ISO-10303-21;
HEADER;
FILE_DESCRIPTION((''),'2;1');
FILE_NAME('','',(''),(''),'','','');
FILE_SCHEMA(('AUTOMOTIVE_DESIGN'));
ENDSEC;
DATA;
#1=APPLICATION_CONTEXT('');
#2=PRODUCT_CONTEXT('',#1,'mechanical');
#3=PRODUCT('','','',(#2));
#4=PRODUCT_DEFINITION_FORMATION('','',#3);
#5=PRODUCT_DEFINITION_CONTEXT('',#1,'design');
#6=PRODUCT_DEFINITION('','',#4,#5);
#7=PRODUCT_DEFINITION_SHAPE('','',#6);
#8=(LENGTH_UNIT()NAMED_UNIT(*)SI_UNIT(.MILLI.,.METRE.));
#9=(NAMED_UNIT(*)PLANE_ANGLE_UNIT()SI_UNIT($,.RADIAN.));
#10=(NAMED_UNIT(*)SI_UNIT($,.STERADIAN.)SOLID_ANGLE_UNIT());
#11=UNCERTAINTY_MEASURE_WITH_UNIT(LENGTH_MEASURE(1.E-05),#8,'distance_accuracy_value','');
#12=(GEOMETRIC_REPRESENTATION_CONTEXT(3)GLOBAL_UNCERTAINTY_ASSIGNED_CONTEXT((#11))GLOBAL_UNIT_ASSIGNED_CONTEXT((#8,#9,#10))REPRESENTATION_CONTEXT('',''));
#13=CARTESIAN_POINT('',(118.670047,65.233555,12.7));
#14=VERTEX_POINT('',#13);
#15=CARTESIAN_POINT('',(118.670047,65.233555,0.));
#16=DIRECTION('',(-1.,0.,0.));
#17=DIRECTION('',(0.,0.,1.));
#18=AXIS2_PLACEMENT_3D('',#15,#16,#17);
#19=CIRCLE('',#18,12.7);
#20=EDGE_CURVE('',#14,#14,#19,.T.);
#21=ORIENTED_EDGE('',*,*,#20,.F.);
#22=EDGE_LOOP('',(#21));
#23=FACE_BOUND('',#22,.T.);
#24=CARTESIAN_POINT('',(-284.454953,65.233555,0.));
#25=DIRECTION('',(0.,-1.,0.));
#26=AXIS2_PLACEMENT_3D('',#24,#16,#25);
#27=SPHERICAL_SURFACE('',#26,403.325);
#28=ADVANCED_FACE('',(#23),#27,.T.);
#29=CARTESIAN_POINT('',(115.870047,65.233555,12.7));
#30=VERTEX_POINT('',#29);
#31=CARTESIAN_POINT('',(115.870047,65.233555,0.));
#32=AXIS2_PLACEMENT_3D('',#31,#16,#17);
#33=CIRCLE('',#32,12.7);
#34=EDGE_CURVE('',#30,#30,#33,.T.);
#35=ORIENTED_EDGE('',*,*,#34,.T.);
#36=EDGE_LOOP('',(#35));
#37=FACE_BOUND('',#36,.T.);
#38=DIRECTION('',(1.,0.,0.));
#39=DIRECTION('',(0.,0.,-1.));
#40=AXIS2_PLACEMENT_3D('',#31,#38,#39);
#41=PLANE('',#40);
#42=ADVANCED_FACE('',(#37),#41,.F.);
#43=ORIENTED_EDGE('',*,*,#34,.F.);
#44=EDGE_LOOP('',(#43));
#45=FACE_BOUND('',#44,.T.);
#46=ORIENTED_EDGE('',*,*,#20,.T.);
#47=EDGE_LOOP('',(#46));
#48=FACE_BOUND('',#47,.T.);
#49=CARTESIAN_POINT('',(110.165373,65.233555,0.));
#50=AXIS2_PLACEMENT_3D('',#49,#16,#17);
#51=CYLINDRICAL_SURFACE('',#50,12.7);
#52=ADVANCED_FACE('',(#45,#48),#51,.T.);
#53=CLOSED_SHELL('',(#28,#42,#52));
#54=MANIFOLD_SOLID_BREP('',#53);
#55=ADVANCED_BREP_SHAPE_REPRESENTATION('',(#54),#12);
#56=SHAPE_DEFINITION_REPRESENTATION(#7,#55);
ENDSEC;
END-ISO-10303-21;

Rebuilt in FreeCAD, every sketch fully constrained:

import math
import FreeCAD as App
import Part
import Sketcher
from FreeCAD import Vector
Q = App.Units.Quantity

doc = App.newDocument("Part")
body = doc.addObject("PartDesign::Body", "Body")

sketch1 = body.newObject("Sketcher::SketchObject", "Sketch")
sketch1.AttachmentSupport = (doc.getObject("XY_Plane"), [""])
sketch1.MapMode = "FlatFace"
sketch1.addGeometry(Part.LineSegment(Vector(115.870047, 77.933555, 0), Vector(115.870047, 65.233555, 0)), False)
sketch1.addGeometry(Part.LineSegment(Vector(115.870047, 65.233555, 0), Vector(118.870047, 65.233555, 0)), False)
sketch1.addGeometry(Part.ArcOfCircle(Part.Circle(Vector(-284.454956, 65.233555, 0), Vector(0, 0, 1), 403.325003), math.radians(0), math.radians(1.804442)), False)
sketch1.addGeometry(Part.LineSegment(Vector(118.670047, 77.933555, 0), Vector(115.870047, 77.933555, 0)), False)
sketch1.addGeometry(Part.LineSegment(Vector(-284.454956, 65.233555, 0), Vector(118.870047, 65.233555, 0)), True)
sketch1.addConstraint(Sketcher.Constraint("Coincident", 0, 2, 1, 1))
sketch1.addConstraint(Sketcher.Constraint("Coincident", 1, 2, 2, 1))
sketch1.addConstraint(Sketcher.Constraint("Coincident", 2, 2, 3, 1))
sketch1.addConstraint(Sketcher.Constraint("Coincident", 3, 2, 0, 1))
sketch1.addConstraint(Sketcher.Constraint("Vertical", 0))
sketch1.addConstraint(Sketcher.Constraint("Horizontal", 1))
sketch1.addConstraint(Sketcher.Constraint("Horizontal", 3))
sketch1.addConstraint(Sketcher.Constraint("Horizontal", 4))
sketch1.addConstraint(Sketcher.Constraint("Coincident", 4, 1, 2, 3))
sketch1.addConstraint(Sketcher.Constraint("Coincident", 4, 2, 1, 2))
sketch1.addConstraint(Sketcher.Constraint("DistanceX", 1, 1, 1, 2, Q("3 mm")))
sketch1.addConstraint(Sketcher.Constraint("DistanceX", 3, 2, 3, 1, Q("2.8 mm")))
sketch1.addConstraint(Sketcher.Constraint("DistanceY", 0, 2, 0, 1, Q("12.7 mm")))
sketch1.addConstraint(Sketcher.Constraint("DistanceX", 2, 3, -1, 1, Q("284.454956 mm")))
sketch1.addConstraint(Sketcher.Constraint("DistanceY", -1, 1, 2, 3, Q("65.233555 mm")))
revolution = body.newObject("PartDesign::Revolution", "Revolution")
revolution.Profile = sketch1
revolution.ReferenceAxis = (sketch1, ["Axis0"])
revolution.Angle = 360

doc.recompute()
